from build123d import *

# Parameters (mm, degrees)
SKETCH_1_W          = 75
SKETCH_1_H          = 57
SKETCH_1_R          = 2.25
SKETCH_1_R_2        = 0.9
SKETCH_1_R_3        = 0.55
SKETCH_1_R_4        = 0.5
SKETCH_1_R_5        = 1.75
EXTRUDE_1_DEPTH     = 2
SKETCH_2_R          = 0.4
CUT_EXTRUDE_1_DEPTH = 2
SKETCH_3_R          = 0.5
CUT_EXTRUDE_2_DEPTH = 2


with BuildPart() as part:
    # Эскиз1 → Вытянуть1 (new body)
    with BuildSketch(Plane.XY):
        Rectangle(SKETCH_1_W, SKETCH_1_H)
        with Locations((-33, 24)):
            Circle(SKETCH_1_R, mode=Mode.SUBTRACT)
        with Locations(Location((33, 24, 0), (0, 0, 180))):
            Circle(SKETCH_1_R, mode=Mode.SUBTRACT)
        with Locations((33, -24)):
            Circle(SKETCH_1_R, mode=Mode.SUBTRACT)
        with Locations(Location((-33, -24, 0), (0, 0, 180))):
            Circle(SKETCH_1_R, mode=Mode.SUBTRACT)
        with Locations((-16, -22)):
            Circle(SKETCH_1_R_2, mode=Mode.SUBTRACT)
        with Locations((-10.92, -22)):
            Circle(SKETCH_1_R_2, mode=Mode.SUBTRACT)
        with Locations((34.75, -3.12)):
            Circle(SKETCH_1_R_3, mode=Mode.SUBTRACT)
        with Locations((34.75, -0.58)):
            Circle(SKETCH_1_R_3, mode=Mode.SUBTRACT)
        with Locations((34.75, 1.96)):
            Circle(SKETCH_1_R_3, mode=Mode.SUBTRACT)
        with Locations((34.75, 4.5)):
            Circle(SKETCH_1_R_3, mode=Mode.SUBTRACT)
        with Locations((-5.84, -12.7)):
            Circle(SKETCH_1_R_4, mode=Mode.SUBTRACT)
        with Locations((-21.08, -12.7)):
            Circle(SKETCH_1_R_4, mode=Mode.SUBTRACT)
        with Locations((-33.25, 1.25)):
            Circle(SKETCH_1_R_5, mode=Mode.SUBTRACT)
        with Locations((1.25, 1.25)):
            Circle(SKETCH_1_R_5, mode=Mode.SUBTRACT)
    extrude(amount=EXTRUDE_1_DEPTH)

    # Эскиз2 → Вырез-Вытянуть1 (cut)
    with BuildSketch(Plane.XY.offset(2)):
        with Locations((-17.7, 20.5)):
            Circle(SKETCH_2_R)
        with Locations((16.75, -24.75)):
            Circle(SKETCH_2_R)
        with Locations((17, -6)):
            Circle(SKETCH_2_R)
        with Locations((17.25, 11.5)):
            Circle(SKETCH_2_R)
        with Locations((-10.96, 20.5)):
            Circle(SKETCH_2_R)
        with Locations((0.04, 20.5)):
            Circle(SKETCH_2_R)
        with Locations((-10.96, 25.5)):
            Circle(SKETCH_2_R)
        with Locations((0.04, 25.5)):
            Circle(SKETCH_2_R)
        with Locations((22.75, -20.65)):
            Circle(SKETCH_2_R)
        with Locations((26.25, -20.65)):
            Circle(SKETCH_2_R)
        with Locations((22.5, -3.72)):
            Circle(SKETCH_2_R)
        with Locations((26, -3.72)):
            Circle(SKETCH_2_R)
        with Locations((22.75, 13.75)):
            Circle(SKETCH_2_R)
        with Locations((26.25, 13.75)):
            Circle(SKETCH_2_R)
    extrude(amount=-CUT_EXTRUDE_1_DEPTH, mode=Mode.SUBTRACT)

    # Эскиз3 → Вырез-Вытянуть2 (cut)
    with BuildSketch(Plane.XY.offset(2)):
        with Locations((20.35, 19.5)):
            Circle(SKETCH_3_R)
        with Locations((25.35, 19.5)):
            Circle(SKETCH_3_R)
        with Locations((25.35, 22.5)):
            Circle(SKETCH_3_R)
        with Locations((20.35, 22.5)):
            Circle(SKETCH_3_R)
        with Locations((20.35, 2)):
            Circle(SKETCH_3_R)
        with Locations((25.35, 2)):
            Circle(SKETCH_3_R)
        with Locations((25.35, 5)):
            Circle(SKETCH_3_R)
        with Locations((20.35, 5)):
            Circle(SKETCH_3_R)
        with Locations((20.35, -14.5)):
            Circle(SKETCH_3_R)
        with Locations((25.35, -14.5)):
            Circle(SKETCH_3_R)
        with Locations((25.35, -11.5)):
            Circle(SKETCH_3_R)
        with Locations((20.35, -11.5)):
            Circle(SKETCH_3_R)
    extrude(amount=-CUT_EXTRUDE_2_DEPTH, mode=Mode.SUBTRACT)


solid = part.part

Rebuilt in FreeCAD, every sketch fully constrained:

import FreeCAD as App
import Part
import Sketcher

V = App.Vector

doc = App.newDocument("Part")
body = doc.addObject("PartDesign::Body", "Body")

sketch1 = body.newObject("Sketcher::SketchObject", "Sketch")
sketch1.AttachmentSupport = (doc.getObject("XY_Plane"), [""])
sketch1.MapMode = "FlatFace"
sketch1.addGeometry(Part.LineSegment(V(-37.5, 28.5, 0), V(-37.5, -28.5, 0)), False)
sketch1.addGeometry(Part.LineSegment(V(-37.5, -28.5, 0), V(37.5, -28.5, 0)), False)
sketch1.addGeometry(Part.LineSegment(V(37.5, -28.5, 0), V(37.5, 28.5, 0)), False)
sketch1.addGeometry(Part.LineSegment(V(37.5, 28.5, 0), V(-37.5, 28.5, 0)), False)
sketch1.addGeometry(Part.Circle(V(-33, -24, 0), V(0, 0, 1), 2.25), False)
sketch1.addGeometry(Part.Circle(V(-16, -22, 0), V(0, 0, 1), 0.9), False)
sketch1.addGeometry(Part.Circle(V(-10.92, -22, 0), V(0, 0, 1), 0.9), False)
sketch1.addGeometry(Part.Circle(V(-21.08, -12.7, 0), V(0, 0, 1), 0.5), False)
sketch1.addGeometry(Part.Circle(V(-5.84, -12.7, 0), V(0, 0, 1), 0.5), False)
sketch1.addGeometry(Part.Circle(V(33, -24, 0), V(0, 0, 1), 2.25), False)
sketch1.addGeometry(Part.Circle(V(34.75, -3.12, 0), V(0, 0, 1), 0.55), False)
sketch1.addGeometry(Part.Circle(V(34.75, -0.58, 0), V(0, 0, 1), 0.55), False)
sketch1.addGeometry(Part.Circle(V(-33.25, 1.25, 0), V(0, 0, 1), 1.75), False)
sketch1.addGeometry(Part.Circle(V(-33, 24, 0), V(0, 0, 1), 2.25), False)
sketch1.addGeometry(Part.Circle(V(1.25, 1.25, 0), V(0, 0, 1), 1.75), False)
sketch1.addGeometry(Part.Circle(V(34.75, 1.96, 0), V(0, 0, 1), 0.55), False)
sketch1.addGeometry(Part.Circle(V(34.75, 4.5, 0), V(0, 0, 1), 0.55), False)
sketch1.addGeometry(Part.Circle(V(33, 24, 0), V(0, 0, 1), 2.25), False)
sketch1.addConstraint(Sketcher.Constraint("Coincident", 0, 2, 1, 1))
sketch1.addConstraint(Sketcher.Constraint("Coincident", 1, 2, 2, 1))
sketch1.addConstraint(Sketcher.Constraint("Coincident", 2, 2, 3, 1))
sketch1.addConstraint(Sketcher.Constraint("Coincident", 3, 2, 0, 1))
sketch1.addConstraint(Sketcher.Constraint("Vertical", 0))
sketch1.addConstraint(Sketcher.Constraint("Horizontal", 1))
sketch1.addConstraint(Sketcher.Constraint("Vertical", 2))
sketch1.addConstraint(Sketcher.Constraint("Horizontal", 3))
sketch1.addConstraint(Sketcher.Constraint("Equal", 5, 6))
sketch1.addConstraint(Sketcher.Constraint("Equal", 7, 8))
sketch1.addConstraint(Sketcher.Constraint("Equal", 4, 9))
sketch1.addConstraint(Sketcher.Constraint("Equal", 10, 11))
sketch1.addConstraint(Sketcher.Constraint("Equal", 9, 13))
sketch1.addConstraint(Sketcher.Constraint("Equal", 12, 14))
sketch1.addConstraint(Sketcher.Constraint("Equal", 11, 15))
sketch1.addConstraint(Sketcher.Constraint("Equal", 15, 16))
sketch1.addConstraint(Sketcher.Constraint("Equal", 13, 17))
sketch1.addConstraint(Sketcher.Constraint("Symmetric", 9, 3, 13, 3, -1, 1))
sketch1.addConstraint(Sketcher.Constraint("Symmetric", 4, 3, 17, 3, -1, 1))
sketch1.addConstraint(Sketcher.Constraint("Symmetric", 0, 2, 2, 2, -1, 1))
sketch1.addConstraint(Sketcher.Constraint("Symmetric", 4, 3, 9, 3, -2))
sketch1.addConstraint(Sketcher.Constraint("Horizontal", 5, 3, 6, 3))
sketch1.addConstraint(Sketcher.Constraint("Horizontal", 7, 3, 8, 3))
sketch1.addConstraint(Sketcher.Constraint("Horizontal", 12, 3, 14, 3))
sketch1.addConstraint(Sketcher.Constraint("Vertical", 10, 3, 11, 3))
sketch1.addConstraint(Sketcher.Constraint("Vertical", 11, 3, 15, 3))
sketch1.addConstraint(Sketcher.Constraint("Vertical", 15, 3, 16, 3))
sketch1.addConstraint(Sketcher.Constraint("Diameter", 7, 1.0))
sketch1.addConstraint(Sketcher.Constraint("Diameter", 4, 4.5))
sketch1.addConstraint(Sketcher.Constraint("Diameter", 5, 1.8))
sketch1.addConstraint(Sketcher.Constraint("Diameter", 10, 1.1))
sketch1.addConstraint(Sketcher.Constraint("Diameter", 12, 3.5))
sketch1.addConstraint(Sketcher.Constraint("DistanceX", 1, 1, 1, 2, 75.0))
sketch1.addConstraint(Sketcher.Constraint("DistanceY", 0, 2, 0, 1, 57.0))
sketch1.addConstraint(Sketcher.Constraint("DistanceX", 4, 3, -1, 1, 33.0))
sketch1.addConstraint(Sketcher.Constraint("DistanceY", 4, 3, -1, 1, 24.0))
sketch1.addConstraint(Sketcher.Constraint("DistanceX", 5, 3, -1, 1, 16.0))
sketch1.addConstraint(Sketcher.Constraint("DistanceY", 5, 3, -1, 1, 22.0))
sketch1.addConstraint(Sketcher.Constraint("DistanceY", 1, 2, 16, 3, 33.0))
sketch1.addConstraint(Sketcher.Constraint("DistanceY", 7, 3, -1, 1, 12.7))
sketch1.addConstraint(Sketcher.Constraint("DistanceX", 14, 3, 11, 3, 33.5))
sketch1.addConstraint(Sketcher.Constraint("DistanceX", 6, 3, -1, 1, 10.92))
sketch1.addConstraint(Sketcher.Constraint("DistanceX", 7, 3, -1, 1, 21.08))
sketch1.addConstraint(Sketcher.Constraint("DistanceX", 8, 3, -1, 1, 5.84))
sketch1.addConstraint(Sketcher.Constraint("DistanceX", -1, 1, 10, 3, 34.75))
sketch1.addConstraint(Sketcher.Constraint("DistanceY", 10, 3, -1, 1, 3.12))
sketch1.addConstraint(Sketcher.Constraint("DistanceY", 11, 3, -1, 1, 0.58))
sketch1.addConstraint(Sketcher.Constraint("DistanceX", 12, 3, -1, 1, 33.25))
sketch1.addConstraint(Sketcher.Constraint("DistanceY", -1, 1, 12, 3, 1.25))
sketch1.addConstraint(Sketcher.Constraint("DistanceY", -1, 1, 15, 3, 1.96))
pad1 = body.newObject("PartDesign::Pad", "Pad")
pad1.Profile = sketch1
pad1.Length = 2

sketch2 = body.newObject("Sketcher::SketchObject", "Sketch001")
sketch2.AttachmentSupport = (doc.getObject("XY_Plane"), [""])
sketch2.MapMode = "FlatFace"
sketch2.AttachmentOffset = App.Placement(V(0, 0, 2), App.Rotation())
sketch2.addGeometry(Part.Circle(V(-17.7, 20.5, 0), V(0, 0, 1), 0.4), False)
sketch2.addGeometry(Part.Circle(V(16.75, -24.75, 0), V(0, 0, 1), 0.4), False)
sketch2.addGeometry(Part.Circle(V(17, -6, 0), V(0, 0, 1), 0.4), False)
sketch2.addGeometry(Part.Circle(V(17.25, 11.5, 0), V(0, 0, 1), 0.4), False)
sketch2.addGeometry(Part.Circle(V(-10.96, 20.5, 0), V(0, 0, 1), 0.4), False)
sketch2.addGeometry(Part.Circle(V(0.04, 20.5, 0), V(0, 0, 1), 0.4), False)
sketch2.addGeometry(Part.Circle(V(-10.96, 25.5, 0), V(0, 0, 1), 0.4), False)
sketch2.addGeometry(Part.Circle(V(0.04, 25.5, 0), V(0, 0, 1), 0.4), False)
sketch2.addGeometry(Part.Circle(V(22.75, -20.65, 0), V(0, 0, 1), 0.4), False)
sketch2.addGeometry(Part.Circle(V(26.25, -20.65, 0), V(0, 0, 1), 0.4), False)
sketch2.addGeometry(Part.Circle(V(22.5, -3.72, 0), V(0, 0, 1), 0.4), False)
sketch2.addGeometry(Part.Circle(V(26, -3.72, 0), V(0, 0, 1), 0.4), False)
sketch2.addGeometry(Part.Circle(V(22.75, 13.75, 0), V(0, 0, 1), 0.4), False)
sketch2.addGeometry(Part.Circle(V(26.25, 13.75, 0), V(0, 0, 1), 0.4), False)
sketch2.addConstraint(Sketcher.Constraint("Equal", 0, 1))
sketch2.addConstraint(Sketcher.Constraint("Equal", 1, 2))
sketch2.addConstraint(Sketcher.Constraint("Equal", 2, 3))
sketch2.addConstraint(Sketcher.Constraint("Equal", 3, 4))
sketch2.addConstraint(Sketcher.Constraint("Equal", 4, 5))
sketch2.addConstraint(Sketcher.Constraint("Equal", 5, 6))
sketch2.addConstraint(Sketcher.Constraint("Equal", 6, 7))
sketch2.addConstraint(Sketcher.Constraint("Equal", 7, 8))
sketch2.addConstraint(Sketcher.Constraint("Equal", 8, 9))
sketch2.addConstraint(Sketcher.Constraint("Equal", 9, 10))
sketch2.addConstraint(Sketcher.Constraint("Equal", 10, 11))
sketch2.addConstraint(Sketcher.Constraint("Equal", 11, 12))
sketch2.addConstraint(Sketcher.Constraint("Equal", 12, 13))
sketch2.addConstraint(Sketcher.Constraint("Horizontal", 0, 3, 4, 3))
sketch2.addConstraint(Sketcher.Constraint("Horizontal", 4, 3, 5, 3))
sketch2.addConstraint(Sketcher.Constraint("Horizontal", 6, 3, 7, 3))
sketch2.addConstraint(Sketcher.Constraint("Horizontal", 8, 3, 9, 3))
sketch2.addConstraint(Sketcher.Constraint("Horizontal", 10, 3, 11, 3))
sketch2.addConstraint(Sketcher.Constraint("Horizontal", 12, 3, 13, 3))
sketch2.addConstraint(Sketcher.Constraint("Vertical", 4, 3, 6, 3))
sketch2.addConstraint(Sketcher.Constraint("Vertical", 5, 3, 7, 3))
sketch2.addConstraint(Sketcher.Constraint("Vertical", 8, 3, 12, 3))
sketch2.addConstraint(Sketcher.Constraint("Vertical", 9, 3, 13, 3))
sketch2.addConstraint(Sketcher.Constraint("Diameter", 0, 0.8))
sketch2.addConstraint(Sketcher.Constraint("DistanceX", -1, 1, 2, 3, 17.0))
sketch2.addConstraint(Sketcher.Constraint("DistanceY", 2, 3, -1, 1, 6.0))
sketch2.addConstraint(Sketcher.Constraint("DistanceX", -1, 1, 11, 3, 26.0))
sketch2.addConstraint(Sketcher.Constraint("DistanceY", 3, 3, 0, 3, 9.0))
sketch2.addConstraint(Sketcher.Constraint("DistanceX", 4, 3, 5, 3, 11.0))
sketch2.addConstraint(Sketcher.Constraint("DistanceY", 4, 3, 6, 3, 5.0))
sketch2.addConstraint(Sketcher.Constraint("DistanceX", 1, 3, 8, 3, 6.0))
sketch2.addConstraint(Sketcher.Constraint("DistanceX", 3, 3, 9, 3, 9.0))
sketch2.addConstraint(Sketcher.Constraint("DistanceX", 0, 3, -1, 1, 17.7))
sketch2.addConstraint(Sketcher.Constraint("DistanceY", -1, 1, 0, 3, 20.5))
sketch2.addConstraint(Sketcher.Constraint("DistanceX", -1, 1, 10, 3, 22.5))
sketch2.addConstraint(Sketcher.Constraint("DistanceX", 1, 3, 3, 3, 0.5))
sketch2.addConstraint(Sketcher.Constraint("DistanceY", 1, 3, 8, 3, 4.1))
sketch2.addConstraint(Sketcher.Constraint("DistanceX", -1, 1, 1, 3, 16.75))
sketch2.addConstraint(Sketcher.Constraint("DistanceY", 1, 3, -1, 1, 24.75))
sketch2.addConstraint(Sketcher.Constraint("DistanceX", 4, 3, -1, 1, 10.96))
sketch2.addConstraint(Sketcher.Constraint("DistanceY", 10, 3, -1, 1, 3.72))
sketch2.addConstraint(Sketcher.Constraint("DistanceY", -1, 1, 12, 3, 13.75))
pocket1 = body.newObject("PartDesign::Pocket", "Pocket")
pocket1.Profile = sketch2
pocket1.Length = 2

sketch3 = body.newObject("Sketcher::SketchObject", "Sketch002")
sketch3.AttachmentSupport = (doc.getObject("XY_Plane"), [""])
sketch3.MapMode = "FlatFace"
sketch3.AttachmentOffset = App.Placement(V(0, 0, 2), App.Rotation())
sketch3.addGeometry(Part.Circle(V(20.35, 19.5, 0), V(0, 0, 1), 0.5), False)
sketch3.addGeometry(Part.Circle(V(25.35, 19.5, 0), V(0, 0, 1), 0.5), False)
sketch3.addGeometry(Part.Circle(V(25.35, 22.5, 0), V(0, 0, 1), 0.5), False)
sketch3.addGeometry(Part.Circle(V(20.35, 22.5, 0), V(0, 0, 1), 0.5), False)
sketch3.addGeometry(Part.Circle(V(20.35, 2, 0), V(0, 0, 1), 0.5), False)
sketch3.addGeometry(Part.Circle(V(25.35, 2, 0), V(0, 0, 1), 0.5), False)
sketch3.addGeometry(Part.Circle(V(25.35, 5, 0), V(0, 0, 1), 0.5), False)
sketch3.addGeometry(Part.Circle(V(20.35, 5, 0), V(0, 0, 1), 0.5), False)
sketch3.addGeometry(Part.Circle(V(20.35, -14.5, 0), V(0, 0, 1), 0.5), False)
sketch3.addGeometry(Part.Circle(V(25.35, -14.5, 0), V(0, 0, 1), 0.5), False)
sketch3.addGeometry(Part.Circle(V(25.35, -11.5, 0), V(0, 0, 1), 0.5), False)
sketch3.addGeometry(Part.Circle(V(20.35, -11.5, 0), V(0, 0, 1), 0.5), False)
sketch3.addConstraint(Sketcher.Constraint("Equal", 0, 1))
sketch3.addConstraint(Sketcher.Constraint("Equal", 1, 2))
sketch3.addConstraint(Sketcher.Constraint("Equal", 2, 3))
sketch3.addConstraint(Sketcher.Constraint("Equal", 3, 4))
sketch3.addConstraint(Sketcher.Constraint("Equal", 4, 5))
sketch3.addConstraint(Sketcher.Constraint("Equal", 5, 6))
sketch3.addConstraint(Sketcher.Constraint("Equal", 6, 7))
sketch3.addConstraint(Sketcher.Constraint("Equal", 7, 8))
sketch3.addConstraint(Sketcher.Constraint("Equal", 8, 9))
sketch3.addConstraint(Sketcher.Constraint("Equal", 9, 10))
sketch3.addConstraint(Sketcher.Constraint("Equal", 10, 11))
sketch3.addConstraint(Sketcher.Constraint("Horizontal", 0, 3, 1, 3))
sketch3.addConstraint(Sketcher.Constraint("Horizontal", 2, 3, 3, 3))
sketch3.addConstraint(Sketcher.Constraint("Horizontal", 4, 3, 5, 3))
sketch3.addConstraint(Sketcher.Constraint("Horizontal", 6, 3, 7, 3))
sketch3.addConstraint(Sketcher.Constraint("Horizontal", 8, 3, 9, 3))
sketch3.addConstraint(Sketcher.Constraint("Horizontal", 10, 3, 11, 3))
sketch3.addConstraint(Sketcher.Constraint("Vertical", 1, 3, 2, 3))
sketch3.addConstraint(Sketcher.Constraint("Vertical", 0, 3, 3, 3))
sketch3.addConstraint(Sketcher.Constraint("Vertical", 3, 3, 4, 3))
sketch3.addConstraint(Sketcher.Constraint("Vertical", 2, 3, 5, 3))
sketch3.addConstraint(Sketcher.Constraint("Vertical", 5, 3, 6, 3))
sketch3.addConstraint(Sketcher.Constraint("Vertical", 4, 3, 7, 3))
sketch3.addConstraint(Sketcher.Constraint("Vertical", 7, 3, 8, 3))
sketch3.addConstraint(Sketcher.Constraint("Vertical", 6, 3, 9, 3))
sketch3.addConstraint(Sketcher.Constraint("Vertical", 9, 3, 10, 3))
sketch3.addConstraint(Sketcher.Constraint("Vertical", 8, 3, 11, 3))
sketch3.addConstraint(Sketcher.Constraint("Diameter", 0, 1.0))
sketch3.addConstraint(Sketcher.Constraint("DistanceY", -1, 1, 4, 3, 2.0))
sketch3.addConstraint(Sketcher.Constraint("DistanceY", -1, 1, 6, 3, 5.0))
sketch3.addConstraint(Sketcher.Constraint("DistanceX", 0, 3, 1, 3, 5.0))
sketch3.addConstraint(Sketcher.Constraint("DistanceY", 1, 3, 2, 3, 3.0))
sketch3.addConstraint(Sketcher.Constraint("DistanceY", 8, 3, 0, 3, 34.0))
sketch3.addConstraint(Sketcher.Constraint("DistanceY", 9, 3, 10, 3, 3.0))
sketch3.addConstraint(Sketcher.Constraint("DistanceY", -1, 1, 0, 3, 19.5))
sketch3.addConstraint(Sketcher.Constraint("DistanceX", -1, 1, 0, 3, 20.35))
pocket2 = body.newObject("PartDesign::Pocket", "Pocket001")
pocket2.Profile = sketch3
pocket2.Length = 2

doc.recompute()
